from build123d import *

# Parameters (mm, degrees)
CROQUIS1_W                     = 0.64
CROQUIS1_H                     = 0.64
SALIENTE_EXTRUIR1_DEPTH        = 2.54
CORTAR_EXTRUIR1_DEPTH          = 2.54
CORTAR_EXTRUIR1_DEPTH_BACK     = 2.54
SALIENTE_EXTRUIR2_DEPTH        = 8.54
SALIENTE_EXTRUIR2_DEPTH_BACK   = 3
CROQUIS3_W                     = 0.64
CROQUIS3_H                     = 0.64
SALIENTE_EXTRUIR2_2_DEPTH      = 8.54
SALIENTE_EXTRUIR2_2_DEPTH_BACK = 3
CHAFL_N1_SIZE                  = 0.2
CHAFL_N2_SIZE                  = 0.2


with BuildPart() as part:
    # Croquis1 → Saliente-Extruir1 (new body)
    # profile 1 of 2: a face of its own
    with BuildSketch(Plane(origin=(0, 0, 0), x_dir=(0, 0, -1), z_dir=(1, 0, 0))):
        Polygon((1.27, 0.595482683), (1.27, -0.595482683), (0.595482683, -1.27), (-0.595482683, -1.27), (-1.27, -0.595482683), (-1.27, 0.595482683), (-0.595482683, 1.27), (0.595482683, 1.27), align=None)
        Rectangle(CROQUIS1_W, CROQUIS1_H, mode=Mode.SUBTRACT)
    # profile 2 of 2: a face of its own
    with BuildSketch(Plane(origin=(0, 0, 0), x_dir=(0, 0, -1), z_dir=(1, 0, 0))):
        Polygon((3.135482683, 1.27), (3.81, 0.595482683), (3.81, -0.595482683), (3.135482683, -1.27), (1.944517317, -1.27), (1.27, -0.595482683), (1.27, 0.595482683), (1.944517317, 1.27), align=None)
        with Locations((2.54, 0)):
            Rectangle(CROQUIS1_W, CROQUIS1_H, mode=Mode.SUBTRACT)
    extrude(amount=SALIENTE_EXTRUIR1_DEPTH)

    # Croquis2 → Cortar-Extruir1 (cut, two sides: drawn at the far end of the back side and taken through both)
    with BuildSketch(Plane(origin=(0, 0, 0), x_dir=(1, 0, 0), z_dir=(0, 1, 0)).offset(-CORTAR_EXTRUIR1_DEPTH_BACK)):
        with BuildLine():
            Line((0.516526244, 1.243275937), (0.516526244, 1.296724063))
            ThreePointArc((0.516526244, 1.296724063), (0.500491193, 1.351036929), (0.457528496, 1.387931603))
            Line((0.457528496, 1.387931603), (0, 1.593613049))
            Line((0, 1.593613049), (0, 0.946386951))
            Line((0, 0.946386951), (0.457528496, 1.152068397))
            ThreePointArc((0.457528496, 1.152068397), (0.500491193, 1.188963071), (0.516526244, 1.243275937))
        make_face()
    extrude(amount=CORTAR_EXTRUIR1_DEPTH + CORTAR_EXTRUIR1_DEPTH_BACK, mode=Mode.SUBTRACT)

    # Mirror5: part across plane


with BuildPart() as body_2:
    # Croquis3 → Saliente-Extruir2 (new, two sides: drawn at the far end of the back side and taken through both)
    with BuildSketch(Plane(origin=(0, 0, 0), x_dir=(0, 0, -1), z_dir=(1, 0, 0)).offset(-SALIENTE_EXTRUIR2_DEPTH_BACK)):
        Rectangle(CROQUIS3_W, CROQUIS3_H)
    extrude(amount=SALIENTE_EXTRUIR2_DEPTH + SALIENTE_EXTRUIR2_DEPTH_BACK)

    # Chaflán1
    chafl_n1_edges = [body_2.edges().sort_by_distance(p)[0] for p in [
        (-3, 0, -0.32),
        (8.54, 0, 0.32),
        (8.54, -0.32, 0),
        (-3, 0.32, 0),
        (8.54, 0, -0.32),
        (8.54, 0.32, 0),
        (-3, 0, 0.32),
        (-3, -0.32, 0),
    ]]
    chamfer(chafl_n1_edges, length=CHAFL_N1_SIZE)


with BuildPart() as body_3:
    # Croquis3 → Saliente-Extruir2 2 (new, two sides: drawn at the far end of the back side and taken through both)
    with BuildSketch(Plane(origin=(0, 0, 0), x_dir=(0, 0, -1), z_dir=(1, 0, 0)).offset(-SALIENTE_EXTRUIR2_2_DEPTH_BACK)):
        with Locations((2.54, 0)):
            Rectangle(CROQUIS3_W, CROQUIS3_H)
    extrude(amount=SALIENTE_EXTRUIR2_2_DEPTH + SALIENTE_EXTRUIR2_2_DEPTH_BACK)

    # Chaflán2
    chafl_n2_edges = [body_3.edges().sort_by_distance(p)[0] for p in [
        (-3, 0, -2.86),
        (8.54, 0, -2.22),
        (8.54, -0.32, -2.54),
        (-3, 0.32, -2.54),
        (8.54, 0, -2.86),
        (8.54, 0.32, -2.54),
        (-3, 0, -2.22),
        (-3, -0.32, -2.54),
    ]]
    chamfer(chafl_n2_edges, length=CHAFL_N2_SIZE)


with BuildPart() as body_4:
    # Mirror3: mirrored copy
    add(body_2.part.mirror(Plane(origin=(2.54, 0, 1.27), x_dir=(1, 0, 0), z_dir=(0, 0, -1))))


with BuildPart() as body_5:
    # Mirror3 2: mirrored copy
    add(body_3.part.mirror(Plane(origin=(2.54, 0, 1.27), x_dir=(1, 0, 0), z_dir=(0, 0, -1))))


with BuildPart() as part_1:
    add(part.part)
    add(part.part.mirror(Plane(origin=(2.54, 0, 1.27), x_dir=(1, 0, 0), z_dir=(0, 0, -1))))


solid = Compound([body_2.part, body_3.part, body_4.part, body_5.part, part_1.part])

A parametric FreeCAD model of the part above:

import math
import FreeCAD as App
import Part
import Sketcher

V = App.Vector
Q = App.Units.Quantity


def edges_at(feature, points):
    """Names of the edges that pass closest to the given points."""
    edges = feature.Shape.Edges
    near = lambda p: min(range(len(edges)), key=lambda i: edges[i].distToShape(Part.Vertex(*p))[0])
    return sorted({f"Edge{near(p) + 1}" for p in points})

doc = App.newDocument("Part")
body = doc.addObject("PartDesign::Body", "Body")

# Sketch on YZ plane
sketch1 = doc.addObject("Sketcher::SketchObject", "Sketch")
body.addObject(sketch1)
sketch1.AttachmentSupport = (doc.YZ_Plane, [""])
sketch1.MapMode = "FlatFace"
sketch1.addGeometry([
    Part.LineSegment(V(0.6, -1.3, 0), V(1.3, -0.6, 0)),  # 0
    Part.LineSegment(V(1.3, -0.6, 0), V(1.3, 0.6, 0)),  # 1
    Part.LineSegment(V(1.3, 0.6, 0), V(0.6, 1.3, 0)),  # 2
    Part.LineSegment(V(0.6, 1.3, 0), V(-0.6, 1.3, 0)),  # 3
    Part.LineSegment(V(-0.6, 1.3, 0), V(-1.3, 0.6, 0)),  # 4
    Part.LineSegment(V(-1.3, 0.6, 0), V(-1.3, -0.6, 0)),  # 5
    Part.LineSegment(V(-1.3, -0.6, 0), V(-0.6, -1.3, 0)),  # 6
    Part.LineSegment(V(-0.6, -1.3, 0), V(-1.3, -1.9, 0)),  # 7
    Part.LineSegment(V(-1.3, -1.9, 0), V(-1.3, -3.1, 0)),  # 8
    Part.LineSegment(V(-1.3, -3.1, 0), V(-0.6, -3.8, 0)),  # 9
    Part.LineSegment(V(-0.6, -3.8, 0), V(0.6, -3.8, 0)),  # 10
    Part.LineSegment(V(0.6, -3.8, 0), V(1.3, -3.1, 0)),  # 11
    Part.LineSegment(V(1.3, -3.1, 0), V(1.3, -1.9, 0)),  # 12
    Part.LineSegment(V(1.3, -1.9, 0), V(0.6, -1.3, 0)),  # 13
    Part.LineSegment(V(-0.3, 0.3, 0), V(0.3, 0.3, 0)),  # 14
    Part.LineSegment(V(0.3, 0.3, 0), V(0.3, -0.3, 0)),  # 15
    Part.LineSegment(V(0.3, -0.3, 0), V(-0.3, -0.3, 0)),  # 16
    Part.LineSegment(V(-0.3, -0.3, 0), V(-0.3, 0.3, 0)),  # 17
    Part.LineSegment(V(-0.3, -2.9, 0), V(-0.3, -2.2, 0)),  # 18
    Part.LineSegment(V(-0.3, -2.2, 0), V(0.3, -2.2, 0)),  # 19
    Part.LineSegment(V(0.3, -2.2, 0), V(0.3, -2.9, 0)),  # 20
    Part.LineSegment(V(0.3, -2.9, 0), V(-0.3, -2.9, 0)),  # 21
], False)
sketch1.addConstraint([
    Sketcher.Constraint("Coincident", 0, 2, 1, 1),
    Sketcher.Constraint("Coincident", 1, 2, 2, 1),
    Sketcher.Constraint("Coincident", 2, 2, 3, 1),
    Sketcher.Constraint("Coincident", 3, 2, 4, 1),
    Sketcher.Constraint("Coincident", 4, 2, 5, 1),
    Sketcher.Constraint("Coincident", 5, 2, 6, 1),
    Sketcher.Constraint("Coincident", 6, 2, 7, 1),
    Sketcher.Constraint("Coincident", 7, 2, 8, 1),
    Sketcher.Constraint("Coincident", 8, 2, 9, 1),
    Sketcher.Constraint("Coincident", 9, 2, 10, 1),
    Sketcher.Constraint("Coincident", 10, 2, 11, 1),
    Sketcher.Constraint("Coincident", 11, 2, 12, 1),
    Sketcher.Constraint("Coincident", 12, 2, 13, 1),
    Sketcher.Constraint("Coincident", 13, 2, 0, 1),
    Sketcher.Constraint("Coincident", 14, 2, 15, 1),
    Sketcher.Constraint("Coincident", 15, 2, 16, 1),
    Sketcher.Constraint("Coincident", 16, 2, 17, 1),
    Sketcher.Constraint("Coincident", 17, 2, 14, 1),
    Sketcher.Constraint("Coincident", 18, 2, 19, 1),
    Sketcher.Constraint("Coincident", 19, 2, 20, 1),
    Sketcher.Constraint("Coincident", 20, 2, 21, 1),
    Sketcher.Constraint("Coincident", 21, 2, 18, 1),
    Sketcher.Constraint("Vertical", 1),
    Sketcher.Constraint("Horizontal", 3),
    Sketcher.Constraint("Vertical", 5),
    Sketcher.Constraint("Vertical", 8),
    Sketcher.Constraint("Horizontal", 10),
    Sketcher.Constraint("Vertical", 12),
    Sketcher.Constraint("Horizontal", 14),
    Sketcher.Constraint("Vertical", 15),
    Sketcher.Constraint("Horizontal", 16),
    Sketcher.Constraint("Vertical", 17),
    Sketcher.Constraint("Vertical", 18),
    Sketcher.Constraint("Horizontal", 19),
    Sketcher.Constraint("Vertical", 20),
    Sketcher.Constraint("Horizontal", 21),
    Sketcher.Constraint("Symmetric", 0, 2, 4, 2, -1, 1),
    Sketcher.Constraint("Symmetric", 2, 2, 6, 2, -1, 1),
    Sketcher.Constraint("Symmetric", 3, 2, 13, 2, -1, 1),
    Sketcher.Constraint("Symmetric", 14, 2, 16, 2, -1, 1),
    Sketcher.Constraint("Symmetric", 8, 2, 11, 2, -2),
    Sketcher.Constraint("Perpendicular", 0, 2),
    Sketcher.Constraint("Perpendicular", 4, 6),
    Sketcher.Constraint("Perpendicular", 6, 7),
    Sketcher.Constraint("Perpendicular", 7, 9),
    Sketcher.Constraint("Perpendicular", 9, 11),
    Sketcher.Constraint("Perpendicular", 11, 13),
    Sketcher.Constraint("Horizontal", 1, 2, 4, 2),
    Sketcher.Constraint("Horizontal", 7, 2, 12, 2),
    Sketcher.Constraint("Vertical", 5, 2, 7, 2),
    Sketcher.Constraint("Vertical", 6, 2, 9, 2),
    Sketcher.Constraint("Vertical", 17, 2, 18, 2),
    Sketcher.Constraint("Vertical", 15, 2, 19, 2),
    Sketcher.Constraint("Equal", 10, 1),
    Sketcher.Constraint("Equal", 5, 8),
    Sketcher.Constraint("Equal", 21, 15),
    Sketcher.Constraint("Equal", 17, 18),
    Sketcher.Constraint("DistanceX", 14, 1, 14, 2, Q("0.64 mm")),
    Sketcher.Constraint("DistanceX", -1, 1, 0, 2, Q("1.27 mm")),
    Sketcher.Constraint("DistanceY", 18, 2, -1, 1, Q("2.22 mm")),
    Sketcher.Constraint("Distance", 0, Q("0.953912 mm")),
])
pad1 = doc.addObject("PartDesign::Pad", "Pad")
body.addObject(pad1)
pad1.Profile = sketch1
pad1.Length = 2.54

# Sketch on XZ plane
sketch2 = doc.addObject("Sketcher::SketchObject", "Sketch001")
body.addObject(sketch2)
sketch2.AttachmentSupport = (doc.XZ_Plane, [""])
sketch2.MapMode = "FlatFace"
sketch2.addGeometry([
    Part.LineSegment(V(0.52, -1.24, 0), V(0.52, -1.3, 0)),  # 0
    Part.ArcOfCircle(Part.Circle(V(0.42, -1.3, 0), V(0, 0, 1), 0.1), math.radians(-66), math.radians(0)),  # 1
    Part.LineSegment(V(0.46, -1.39, 0), V(0, -1.59, 0)),  # 2
    Part.LineSegment(V(0, -1.59, 0), V(0, -0.95, 0)),  # 3
    Part.LineSegment(V(0, -0.95, 0), V(0.46, -1.15, 0)),  # 4
    Part.ArcOfCircle(Part.Circle(V(0.42, -1.24, 0), V(0, 0, 1), 0.1), math.radians(0), math.radians(66)),  # 5
], False)
sketch2.addConstraint([
    Sketcher.Constraint("Tangent", 0, 2, 1, 2),
    Sketcher.Constraint("Tangent", 1, 1, 2, 1),
    Sketcher.Constraint("Coincident", 2, 2, 3, 1),
    Sketcher.Constraint("Coincident", 3, 2, 4, 1),
    Sketcher.Constraint("Tangent", 4, 2, 5, 2),
    Sketcher.Constraint("Tangent", 5, 1, 0, 1),
    Sketcher.Constraint("Vertical", 0),
    Sketcher.Constraint("Vertical", 3),
    Sketcher.Constraint("Equal", 1, 5),
    Sketcher.Constraint("PointOnObject", 2, 2, -2),
    Sketcher.Constraint("Vertical", 1, 1, 4, 2),
    Sketcher.Constraint("Radius", 1, Q("0.1 mm")),
    Sketcher.Constraint("DistanceY", 0, 2, 0, 1, Q("0.053448 mm")),
    Sketcher.Constraint("DistanceY", 3, 1, 3, 2, Q("0.647226 mm")),
    Sketcher.Constraint("DistanceX", -1, 1, 1, 1, Q("0.457528 mm")),
    Sketcher.Constraint("DistanceY", 1, 1, -1, 1, Q("1.387932 mm")),
])
pocket1 = doc.addObject("PartDesign::Pocket", "Pocket")
body.addObject(pocket1)
pocket1.Profile = sketch2
pocket1.Type = "ThroughAll"
pocket1.Midplane = True
body2 = doc.addObject("PartDesign::Body", "Body001")

# Sketch on YZ plane
sketch3 = doc.addObject("Sketcher::SketchObject", "Sketch002")
body2.addObject(sketch3)
sketch3.AttachmentSupport = (doc.getObject("YZ_Plane001"), [""])
sketch3.MapMode = "FlatFace"
sketch3.addGeometry([
    Part.LineSegment(V(0.3, 0.3, 0), V(-0.3, 0.3, 0)),
    Part.LineSegment(V(-0.3, 0.3, 0), V(-0.3, -0.3, 0)),
    Part.LineSegment(V(-0.3, -0.3, 0), V(0.3, -0.3, 0)),
    Part.LineSegment(V(0.3, -0.3, 0), V(0.3, 0.3, 0)),
], False)
sketch3.addConstraint([
    Sketcher.Constraint("Coincident", 0, 2, 1, 1),
    Sketcher.Constraint("Coincident", 1, 2, 2, 1),
    Sketcher.Constraint("Coincident", 2, 2, 3, 1),
    Sketcher.Constraint("Coincident", 3, 2, 0, 1),
    Sketcher.Constraint("Horizontal", 0),
    Sketcher.Constraint("Vertical", 1),
    Sketcher.Constraint("Horizontal", 2),
    Sketcher.Constraint("Vertical", 3),
    Sketcher.Constraint("Symmetric", 0, 2, 2, 2, -1, 1),
    Sketcher.Constraint("Equal", 2, 1),
    Sketcher.Constraint("DistanceX", 0, 2, 0, 1, Q("0.64 mm")),
])
pad2 = doc.addObject("PartDesign::Pad", "Pad001")
body2.addObject(pad2)
pad2.Profile = sketch3
pad2.Type = "TwoLengths"
pad2.Length = 8.54
pad2.Length2 = 3
doc.recompute()

chamfer = doc.addObject("PartDesign::Chamfer", "Chamfer")
body2.addObject(chamfer)
chamfer.Base = (pad2, edges_at(pad2, [
    (-3, 0, -0.32),
    (8.54, 0, 0.32),
    (8.54, -0.32, 0),
    (-3, 0.32, 0),
    (8.54, 0, -0.32),
    (8.54, 0.32, 0),
    (-3, 0, 0.32),
    (-3, -0.32, 0),
]))
chamfer.Size = 0.2
body3 = doc.addObject("PartDesign::Body", "Body002")

# Sketch on YZ plane
sketch4 = doc.addObject("Sketcher::SketchObject", "Sketch003")
body3.addObject(sketch4)
sketch4.AttachmentSupport = (doc.getObject("YZ_Plane002"), [""])
sketch4.MapMode = "FlatFace"
sketch4.addGeometry([
    Part.LineSegment(V(0.3, -2.2, 0), V(-0.3, -2.2, 0)),
    Part.LineSegment(V(-0.3, -2.2, 0), V(-0.3, -2.9, 0)),
    Part.LineSegment(V(-0.3, -2.9, 0), V(0.3, -2.9, 0)),
    Part.LineSegment(V(0.3, -2.9, 0), V(0.3, -2.2, 0)),
], False)
sketch4.addConstraint([
    Sketcher.Constraint("Coincident", 0, 2, 1, 1),
    Sketcher.Constraint("Coincident", 1, 2, 2, 1),
    Sketcher.Constraint("Coincident", 2, 2, 3, 1),
    Sketcher.Constraint("Coincident", 3, 2, 0, 1),
    Sketcher.Constraint("Horizontal", 0),
    Sketcher.Constraint("Vertical", 1),
    Sketcher.Constraint("Horizontal", 2),
    Sketcher.Constraint("Vertical", 3),
    Sketcher.Constraint("Equal", 2, 1),
    Sketcher.Constraint("DistanceX", 0, 2, 0, 1, Q("0.64 mm")),
    Sketcher.Constraint("DistanceX", 0, 2, -1, 1, Q("0.32 mm")),
    Sketcher.Constraint("DistanceY", 0, 2, -1, 1, Q("2.22 mm")),
])
pad3 = doc.addObject("PartDesign::Pad", "Pad002")
body3.addObject(pad3)
pad3.Profile = sketch4
pad3.Type = "TwoLengths"
pad3.Length = 8.54
pad3.Length2 = 3
doc.recompute()

chamfer2 = doc.addObject("PartDesign::Chamfer", "Chamfer001")
body3.addObject(chamfer2)
chamfer2.Base = (pad3, edges_at(pad3, [
    (-3, 0, -2.86),
    (8.54, 0, -2.22),
    (8.54, -0.32, -2.54),
    (-3, 0.32, -2.54),
    (8.54, 0, -2.86),
    (8.54, 0.32, -2.54),
    (-3, 0, -2.22),
    (-3, -0.32, -2.54),
]))
chamfer2.Size = 0.2
body4 = doc.addObject("PartDesign::Body", "Body003")
doc.recompute()

mirroring = doc.addObject("Part::Mirroring", "Mirroring")
mirroring.Source = body2
mirroring.Base = V(2.54, 0, 1.27)
mirroring.Normal = V(0, 0, -1)
body4.BaseFeature = mirroring
doc.recompute()
body5 = doc.addObject("PartDesign::Body", "Body004")
doc.recompute()

mirroring2 = doc.addObject("Part::Mirroring", "Mirroring001")
mirroring2.Source = body3
mirroring2.Base = V(2.54, 0, 1.27)
mirroring2.Normal = V(0, 0, -1)
body5.BaseFeature = mirroring2
doc.recompute()
body6 = doc.addObject("PartDesign::Body", "Body005")
doc.recompute()

body6.BaseFeature = body
doc.recompute()

mirroring3 = doc.addObject("Part::Mirroring", "Mirroring002")
mirroring3.Source = body
mirroring3.Base = V(2.54, 0, 1.27)
mirroring3.Normal = V(0, 0, -1)
body7 = doc.addObject("PartDesign::Body", "Body006")
body7.BaseFeature = mirroring3
boolean = doc.addObject("PartDesign::Boolean", "Boolean")
body6.addObject(boolean)
boolean.Type = "Fuse"
boolean.addObjects([body7])
doc.recompute()
mirroring.Visibility = False
mirroring2.Visibility = False
mirroring3.Visibility = False

doc.recompute()
